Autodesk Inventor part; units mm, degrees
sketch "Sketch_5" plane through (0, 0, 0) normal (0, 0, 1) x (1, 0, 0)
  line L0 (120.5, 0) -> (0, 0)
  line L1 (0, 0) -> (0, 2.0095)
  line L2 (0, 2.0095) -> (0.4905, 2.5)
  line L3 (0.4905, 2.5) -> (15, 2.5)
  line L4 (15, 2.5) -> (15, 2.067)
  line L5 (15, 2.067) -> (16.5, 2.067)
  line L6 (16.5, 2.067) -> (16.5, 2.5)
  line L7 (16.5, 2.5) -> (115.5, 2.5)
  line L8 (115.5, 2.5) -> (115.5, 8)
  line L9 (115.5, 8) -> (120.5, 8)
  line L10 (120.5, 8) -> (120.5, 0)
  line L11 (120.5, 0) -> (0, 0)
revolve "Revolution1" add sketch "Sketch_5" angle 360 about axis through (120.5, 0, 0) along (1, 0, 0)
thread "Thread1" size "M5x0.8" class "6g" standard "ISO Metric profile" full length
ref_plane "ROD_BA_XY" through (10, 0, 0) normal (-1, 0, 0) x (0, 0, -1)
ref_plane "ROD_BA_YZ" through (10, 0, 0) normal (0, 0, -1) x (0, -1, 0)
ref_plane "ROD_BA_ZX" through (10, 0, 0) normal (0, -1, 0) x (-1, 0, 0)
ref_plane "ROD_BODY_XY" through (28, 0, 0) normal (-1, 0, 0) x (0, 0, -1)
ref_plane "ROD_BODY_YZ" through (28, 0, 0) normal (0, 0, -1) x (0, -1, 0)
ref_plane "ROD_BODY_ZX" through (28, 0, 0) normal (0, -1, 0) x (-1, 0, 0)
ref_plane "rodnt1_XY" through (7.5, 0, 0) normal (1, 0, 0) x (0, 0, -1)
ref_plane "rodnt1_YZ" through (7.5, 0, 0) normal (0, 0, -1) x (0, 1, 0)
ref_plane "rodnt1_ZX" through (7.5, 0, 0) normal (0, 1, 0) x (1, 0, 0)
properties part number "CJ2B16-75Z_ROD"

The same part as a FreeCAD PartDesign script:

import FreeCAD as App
import Part
import Sketcher

V = App.Vector
Q = App.Units.Quantity

doc = App.newDocument("Part")
params = doc.addObject("Spreadsheet::Sheet", "Params")
for row, (alias, value) in enumerate([
    ("sketch1_width", "5 mm"),
    ("sketch1_width2", "99 mm"),
    ("sketch1_height", "8 mm"),
    ("sketch1_width3", "120.5 mm"),
    ("sketch1_width4", "1.5 mm"),
    ("revolution_angle", "360 deg"),
], start=1):
    params.set(f"A{row}", alias)
    params.set(f"B{row}", "=" + value)
    params.setAlias(f"B{row}", alias)

body = doc.addObject("PartDesign::Body", "Body")

sketch1 = doc.addObject("Sketcher::SketchObject", "Sketch")
body.addObject(sketch1)
sketch1.AttachmentSupport = (doc.XY_Plane, [""])
sketch1.MapMode = "FlatFace"
sketch1.addGeometry(Part.LineSegment(V(0, 0, 0), V(120.5, 0, 0)), False)
sketch1.addGeometry(Part.LineSegment(V(120.5, 0, 0), V(120.5, 8, 0)), False)
sketch1.addGeometry(Part.LineSegment(V(120.5, 8, 0), V(115.5, 8, 0)), False)
sketch1.addGeometry(Part.LineSegment(V(115.5, 8, 0), V(115.5, 2.5, 0)), False)
sketch1.addGeometry(Part.LineSegment(V(115.5, 2.5, 0), V(16.5, 2.5, 0)), False)
sketch1.addGeometry(Part.LineSegment(V(16.5, 2.5, 0), V(16.5, 2.067, 0)), False)
sketch1.addGeometry(Part.LineSegment(V(16.5, 2.067, 0), V(15, 2.067, 0)), False)
sketch1.addGeometry(Part.LineSegment(V(15, 2.067, 0), V(15, 2.5, 0)), False)
sketch1.addGeometry(Part.LineSegment(V(15, 2.5, 0), V(0.4905, 2.5, 0)), False)
sketch1.addGeometry(Part.LineSegment(V(0.4905, 2.5, 0), V(0, 2.0095, 0)), False)
sketch1.addGeometry(Part.LineSegment(V(0, 2.0095, 0), V(0, 0, 0)), False)
sketch1.addConstraint(Sketcher.Constraint("Coincident", 0, 2, 1, 1))
sketch1.addConstraint(Sketcher.Constraint("Coincident", 1, 2, 2, 1))
sketch1.addConstraint(Sketcher.Constraint("Coincident", 2, 2, 3, 1))
sketch1.addConstraint(Sketcher.Constraint("Coincident", 3, 2, 4, 1))
sketch1.addConstraint(Sketcher.Constraint("Coincident", 4, 2, 5, 1))
sketch1.addConstraint(Sketcher.Constraint("Coincident", 5, 2, 6, 1))
sketch1.addConstraint(Sketcher.Constraint("Coincident", 6, 2, 7, 1))
sketch1.addConstraint(Sketcher.Constraint("Coincident", 7, 2, 8, 1))
sketch1.addConstraint(Sketcher.Constraint("Coincident", 8, 2, 9, 1))
sketch1.addConstraint(Sketcher.Constraint("Coincident", 9, 2, 10, 1))
sketch1.addConstraint(Sketcher.Constraint("Coincident", 10, 2, 0, 1))
sketch1.addConstraint(Sketcher.Constraint("Horizontal", 0))
sketch1.addConstraint(Sketcher.Constraint("Vertical", 1))
sketch1.addConstraint(Sketcher.Constraint("Horizontal", 2))
sketch1.addConstraint(Sketcher.Constraint("Vertical", 3))
sketch1.addConstraint(Sketcher.Constraint("Horizontal", 4))
sketch1.addConstraint(Sketcher.Constraint("Vertical", 5))
sketch1.addConstraint(Sketcher.Constraint("Horizontal", 6))
sketch1.addConstraint(Sketcher.Constraint("Vertical", 7))
sketch1.addConstraint(Sketcher.Constraint("Horizontal", 8))
sketch1.addConstraint(Sketcher.Constraint("Vertical", 10))
sketch1.addConstraint(Sketcher.Constraint("Coincident", 10, 2, -1, 1))
sketch1.addConstraint(Sketcher.Constraint("Horizontal", 4, 2, 7, 2))
sketch1.addConstraint(Sketcher.Constraint("DistanceX", 2, 2, 2, 1, 5.0))
sketch1.addConstraint(Sketcher.Constraint("DistanceX", 4, 2, 4, 1, 99.0))
sketch1.addConstraint(Sketcher.Constraint("DistanceY", 1, 1, 1, 2, 8.0))
sketch1.addConstraint(Sketcher.Constraint("Angle", 9, Q("-135 deg")))
sketch1.addConstraint(Sketcher.Constraint("DistanceX", 0, 1, 0, 2, 120.5))
sketch1.addConstraint(Sketcher.Constraint("DistanceX", 6, 2, 6, 1, 1.5))
sketch1.addConstraint(Sketcher.Constraint("DistanceY", 3, 2, 3, 1, 5.5))
sketch1.addConstraint(Sketcher.Constraint("DistanceY", 5, 2, 5, 1, 0.433))
sketch1.addConstraint(Sketcher.Constraint("DistanceX", 8, 2, 8, 1, 14.5095))
sketch1.setExpression("Constraints[23]", "Params.sketch1_width")
sketch1.setExpression("Constraints[24]", "Params.sketch1_width2")
sketch1.setExpression("Constraints[25]", "Params.sketch1_height")
sketch1.setExpression("Constraints[27]", "Params.sketch1_width3")
sketch1.setExpression("Constraints[28]", "Params.sketch1_width4")
revolution = doc.addObject("PartDesign::Revolution", "Revolution")
body.addObject(revolution)
revolution.Profile = sketch1
revolution.ReferenceAxis = (sketch1, ["H_Axis"])
revolution.setExpression("Angle", "Params.revolution_angle")

doc.recompute()
